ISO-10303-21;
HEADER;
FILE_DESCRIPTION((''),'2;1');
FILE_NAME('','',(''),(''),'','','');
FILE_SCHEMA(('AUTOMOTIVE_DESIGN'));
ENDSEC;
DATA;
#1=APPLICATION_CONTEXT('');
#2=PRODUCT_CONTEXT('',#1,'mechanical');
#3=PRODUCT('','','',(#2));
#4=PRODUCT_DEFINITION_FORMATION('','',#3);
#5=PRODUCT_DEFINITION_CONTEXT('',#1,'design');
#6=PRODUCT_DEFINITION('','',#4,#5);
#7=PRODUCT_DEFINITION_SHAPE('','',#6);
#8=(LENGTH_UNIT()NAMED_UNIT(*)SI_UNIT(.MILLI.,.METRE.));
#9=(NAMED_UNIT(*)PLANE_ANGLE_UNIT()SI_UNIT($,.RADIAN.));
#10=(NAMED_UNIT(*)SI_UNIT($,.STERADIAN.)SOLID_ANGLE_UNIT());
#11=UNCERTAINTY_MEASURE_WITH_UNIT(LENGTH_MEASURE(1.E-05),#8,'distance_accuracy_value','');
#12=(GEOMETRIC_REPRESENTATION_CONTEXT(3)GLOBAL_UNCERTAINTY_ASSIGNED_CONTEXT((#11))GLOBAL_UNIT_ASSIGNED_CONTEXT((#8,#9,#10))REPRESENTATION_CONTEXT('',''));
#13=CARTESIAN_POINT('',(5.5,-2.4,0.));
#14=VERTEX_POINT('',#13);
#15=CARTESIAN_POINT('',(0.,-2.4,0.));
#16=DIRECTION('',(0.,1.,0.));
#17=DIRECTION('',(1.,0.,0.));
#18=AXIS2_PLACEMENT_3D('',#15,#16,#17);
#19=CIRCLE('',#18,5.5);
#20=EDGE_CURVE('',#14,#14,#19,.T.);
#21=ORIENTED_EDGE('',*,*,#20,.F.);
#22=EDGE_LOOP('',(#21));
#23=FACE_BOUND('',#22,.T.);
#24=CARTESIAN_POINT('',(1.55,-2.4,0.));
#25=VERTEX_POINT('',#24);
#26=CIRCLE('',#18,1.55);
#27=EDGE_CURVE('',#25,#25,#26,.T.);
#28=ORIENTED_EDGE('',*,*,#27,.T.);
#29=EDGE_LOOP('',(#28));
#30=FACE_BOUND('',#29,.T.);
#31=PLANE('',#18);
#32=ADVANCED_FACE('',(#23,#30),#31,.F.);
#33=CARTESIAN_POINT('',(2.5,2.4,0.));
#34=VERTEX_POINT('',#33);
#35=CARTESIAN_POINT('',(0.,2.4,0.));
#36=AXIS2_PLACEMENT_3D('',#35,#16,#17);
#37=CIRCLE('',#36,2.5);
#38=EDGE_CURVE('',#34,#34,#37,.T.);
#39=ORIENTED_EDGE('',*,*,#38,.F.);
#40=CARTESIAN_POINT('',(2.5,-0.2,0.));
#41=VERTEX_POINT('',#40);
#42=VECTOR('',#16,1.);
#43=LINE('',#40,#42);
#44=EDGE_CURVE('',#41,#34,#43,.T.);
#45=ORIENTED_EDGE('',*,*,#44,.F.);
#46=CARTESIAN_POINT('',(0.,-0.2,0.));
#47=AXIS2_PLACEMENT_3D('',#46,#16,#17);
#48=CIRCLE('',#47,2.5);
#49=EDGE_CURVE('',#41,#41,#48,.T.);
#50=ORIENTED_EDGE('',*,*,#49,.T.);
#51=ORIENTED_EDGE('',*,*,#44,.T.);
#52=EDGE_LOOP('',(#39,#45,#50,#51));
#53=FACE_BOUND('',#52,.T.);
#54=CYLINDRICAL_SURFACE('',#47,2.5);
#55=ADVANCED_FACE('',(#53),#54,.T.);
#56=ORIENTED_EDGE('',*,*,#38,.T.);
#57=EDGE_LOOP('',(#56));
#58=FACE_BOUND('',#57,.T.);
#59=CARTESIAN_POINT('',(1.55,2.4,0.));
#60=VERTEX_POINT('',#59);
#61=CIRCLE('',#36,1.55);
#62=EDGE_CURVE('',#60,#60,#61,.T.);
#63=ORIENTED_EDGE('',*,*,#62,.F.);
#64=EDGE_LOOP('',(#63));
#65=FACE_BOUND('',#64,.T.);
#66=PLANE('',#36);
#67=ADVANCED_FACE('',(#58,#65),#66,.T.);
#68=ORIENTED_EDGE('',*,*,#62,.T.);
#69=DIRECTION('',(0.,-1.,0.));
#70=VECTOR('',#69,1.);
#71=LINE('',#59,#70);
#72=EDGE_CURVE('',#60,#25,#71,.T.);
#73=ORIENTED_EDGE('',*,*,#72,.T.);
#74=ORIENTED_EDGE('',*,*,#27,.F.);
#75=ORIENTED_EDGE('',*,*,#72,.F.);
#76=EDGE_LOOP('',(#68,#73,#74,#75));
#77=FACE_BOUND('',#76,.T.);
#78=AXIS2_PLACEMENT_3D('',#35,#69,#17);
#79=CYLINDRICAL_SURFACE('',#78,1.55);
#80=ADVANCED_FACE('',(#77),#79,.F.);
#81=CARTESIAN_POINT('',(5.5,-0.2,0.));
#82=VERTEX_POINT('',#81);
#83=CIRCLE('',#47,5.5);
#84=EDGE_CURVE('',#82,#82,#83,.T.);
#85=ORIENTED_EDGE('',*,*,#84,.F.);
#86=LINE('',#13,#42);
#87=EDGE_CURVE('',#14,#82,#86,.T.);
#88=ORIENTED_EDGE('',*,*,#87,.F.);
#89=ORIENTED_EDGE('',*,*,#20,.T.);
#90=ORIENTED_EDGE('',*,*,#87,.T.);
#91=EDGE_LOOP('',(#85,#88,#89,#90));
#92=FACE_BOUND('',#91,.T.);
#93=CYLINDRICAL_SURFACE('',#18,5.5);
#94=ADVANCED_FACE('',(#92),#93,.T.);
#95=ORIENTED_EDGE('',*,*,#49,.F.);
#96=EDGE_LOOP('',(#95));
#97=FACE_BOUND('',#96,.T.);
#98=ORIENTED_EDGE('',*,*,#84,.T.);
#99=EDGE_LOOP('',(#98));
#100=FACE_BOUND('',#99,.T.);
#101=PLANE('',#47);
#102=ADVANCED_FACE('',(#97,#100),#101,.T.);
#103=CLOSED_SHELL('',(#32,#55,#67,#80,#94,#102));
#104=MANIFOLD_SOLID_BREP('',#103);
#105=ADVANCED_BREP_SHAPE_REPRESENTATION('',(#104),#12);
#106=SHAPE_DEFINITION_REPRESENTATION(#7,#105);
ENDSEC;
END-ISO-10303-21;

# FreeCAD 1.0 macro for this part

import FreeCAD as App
import Part
import Sketcher


def add_polygon(sketch, points):
    """Adds a closed chain of lines whose ends are joined by coincident constraints."""
    first, n = sketch.GeometryCount, len(points)
    for a, b in zip(points, points[1:] + points[:1]):
        sketch.addGeometry(Part.LineSegment(App.Vector(*a, 0), App.Vector(*b, 0)), False)
    for i in range(n):
        sketch.addConstraint(Sketcher.Constraint("Coincident", first + i, 2, first + (i + 1) % n, 1))

doc = App.newDocument("Part")
body = doc.addObject("PartDesign::Body", "Body")

# Sketch on XY plane
sketch1 = doc.addObject("Sketcher::SketchObject", "Sketch")
body.addObject(sketch1)
sketch1.AttachmentSupport = (doc.XY_Plane, [""])
sketch1.MapMode = "FlatFace"
add_polygon(sketch1, [(2.5, 2.4), (1.6, 2.4), (1.6, -2.4), (5.5, -2.4), (5.5, -0.2), (2.5, -0.2)])  # lines 0-5
sketch1.addConstraint(Sketcher.Constraint("Horizontal", 0))
sketch1.addConstraint(Sketcher.Constraint("Vertical", 1))
sketch1.addConstraint(Sketcher.Constraint("Horizontal", 2))
sketch1.addConstraint(Sketcher.Constraint("Vertical", 3))
sketch1.addConstraint(Sketcher.Constraint("Horizontal", 4))
sketch1.addConstraint(Sketcher.Constraint("Vertical", 5))
sketch1.addConstraint(Sketcher.Constraint("DistanceY", 3, 1, 3, 2, 2.2))
sketch1.addConstraint(Sketcher.Constraint("DistanceY", 5, 1, 5, 2, 2.6))
sketch1.addConstraint(Sketcher.Constraint("DistanceX", -1, 1, 2, 2, 5.5))
sketch1.addConstraint(Sketcher.Constraint("DistanceX", -1, 1, 4, 2, 2.5))
sketch1.addConstraint(Sketcher.Constraint("DistanceX", -1, 1, 0, 2, 1.55))
sketch1.addConstraint(Sketcher.Constraint("DistanceY", -1, 1, 0, 2, 2.4))
revolution = doc.addObject("PartDesign::Revolution", "Revolution")
body.addObject(revolution)
revolution.Profile = sketch1
revolution.ReferenceAxis = (sketch1, ["V_Axis"])
revolution.Angle = 360

doc.recompute()
